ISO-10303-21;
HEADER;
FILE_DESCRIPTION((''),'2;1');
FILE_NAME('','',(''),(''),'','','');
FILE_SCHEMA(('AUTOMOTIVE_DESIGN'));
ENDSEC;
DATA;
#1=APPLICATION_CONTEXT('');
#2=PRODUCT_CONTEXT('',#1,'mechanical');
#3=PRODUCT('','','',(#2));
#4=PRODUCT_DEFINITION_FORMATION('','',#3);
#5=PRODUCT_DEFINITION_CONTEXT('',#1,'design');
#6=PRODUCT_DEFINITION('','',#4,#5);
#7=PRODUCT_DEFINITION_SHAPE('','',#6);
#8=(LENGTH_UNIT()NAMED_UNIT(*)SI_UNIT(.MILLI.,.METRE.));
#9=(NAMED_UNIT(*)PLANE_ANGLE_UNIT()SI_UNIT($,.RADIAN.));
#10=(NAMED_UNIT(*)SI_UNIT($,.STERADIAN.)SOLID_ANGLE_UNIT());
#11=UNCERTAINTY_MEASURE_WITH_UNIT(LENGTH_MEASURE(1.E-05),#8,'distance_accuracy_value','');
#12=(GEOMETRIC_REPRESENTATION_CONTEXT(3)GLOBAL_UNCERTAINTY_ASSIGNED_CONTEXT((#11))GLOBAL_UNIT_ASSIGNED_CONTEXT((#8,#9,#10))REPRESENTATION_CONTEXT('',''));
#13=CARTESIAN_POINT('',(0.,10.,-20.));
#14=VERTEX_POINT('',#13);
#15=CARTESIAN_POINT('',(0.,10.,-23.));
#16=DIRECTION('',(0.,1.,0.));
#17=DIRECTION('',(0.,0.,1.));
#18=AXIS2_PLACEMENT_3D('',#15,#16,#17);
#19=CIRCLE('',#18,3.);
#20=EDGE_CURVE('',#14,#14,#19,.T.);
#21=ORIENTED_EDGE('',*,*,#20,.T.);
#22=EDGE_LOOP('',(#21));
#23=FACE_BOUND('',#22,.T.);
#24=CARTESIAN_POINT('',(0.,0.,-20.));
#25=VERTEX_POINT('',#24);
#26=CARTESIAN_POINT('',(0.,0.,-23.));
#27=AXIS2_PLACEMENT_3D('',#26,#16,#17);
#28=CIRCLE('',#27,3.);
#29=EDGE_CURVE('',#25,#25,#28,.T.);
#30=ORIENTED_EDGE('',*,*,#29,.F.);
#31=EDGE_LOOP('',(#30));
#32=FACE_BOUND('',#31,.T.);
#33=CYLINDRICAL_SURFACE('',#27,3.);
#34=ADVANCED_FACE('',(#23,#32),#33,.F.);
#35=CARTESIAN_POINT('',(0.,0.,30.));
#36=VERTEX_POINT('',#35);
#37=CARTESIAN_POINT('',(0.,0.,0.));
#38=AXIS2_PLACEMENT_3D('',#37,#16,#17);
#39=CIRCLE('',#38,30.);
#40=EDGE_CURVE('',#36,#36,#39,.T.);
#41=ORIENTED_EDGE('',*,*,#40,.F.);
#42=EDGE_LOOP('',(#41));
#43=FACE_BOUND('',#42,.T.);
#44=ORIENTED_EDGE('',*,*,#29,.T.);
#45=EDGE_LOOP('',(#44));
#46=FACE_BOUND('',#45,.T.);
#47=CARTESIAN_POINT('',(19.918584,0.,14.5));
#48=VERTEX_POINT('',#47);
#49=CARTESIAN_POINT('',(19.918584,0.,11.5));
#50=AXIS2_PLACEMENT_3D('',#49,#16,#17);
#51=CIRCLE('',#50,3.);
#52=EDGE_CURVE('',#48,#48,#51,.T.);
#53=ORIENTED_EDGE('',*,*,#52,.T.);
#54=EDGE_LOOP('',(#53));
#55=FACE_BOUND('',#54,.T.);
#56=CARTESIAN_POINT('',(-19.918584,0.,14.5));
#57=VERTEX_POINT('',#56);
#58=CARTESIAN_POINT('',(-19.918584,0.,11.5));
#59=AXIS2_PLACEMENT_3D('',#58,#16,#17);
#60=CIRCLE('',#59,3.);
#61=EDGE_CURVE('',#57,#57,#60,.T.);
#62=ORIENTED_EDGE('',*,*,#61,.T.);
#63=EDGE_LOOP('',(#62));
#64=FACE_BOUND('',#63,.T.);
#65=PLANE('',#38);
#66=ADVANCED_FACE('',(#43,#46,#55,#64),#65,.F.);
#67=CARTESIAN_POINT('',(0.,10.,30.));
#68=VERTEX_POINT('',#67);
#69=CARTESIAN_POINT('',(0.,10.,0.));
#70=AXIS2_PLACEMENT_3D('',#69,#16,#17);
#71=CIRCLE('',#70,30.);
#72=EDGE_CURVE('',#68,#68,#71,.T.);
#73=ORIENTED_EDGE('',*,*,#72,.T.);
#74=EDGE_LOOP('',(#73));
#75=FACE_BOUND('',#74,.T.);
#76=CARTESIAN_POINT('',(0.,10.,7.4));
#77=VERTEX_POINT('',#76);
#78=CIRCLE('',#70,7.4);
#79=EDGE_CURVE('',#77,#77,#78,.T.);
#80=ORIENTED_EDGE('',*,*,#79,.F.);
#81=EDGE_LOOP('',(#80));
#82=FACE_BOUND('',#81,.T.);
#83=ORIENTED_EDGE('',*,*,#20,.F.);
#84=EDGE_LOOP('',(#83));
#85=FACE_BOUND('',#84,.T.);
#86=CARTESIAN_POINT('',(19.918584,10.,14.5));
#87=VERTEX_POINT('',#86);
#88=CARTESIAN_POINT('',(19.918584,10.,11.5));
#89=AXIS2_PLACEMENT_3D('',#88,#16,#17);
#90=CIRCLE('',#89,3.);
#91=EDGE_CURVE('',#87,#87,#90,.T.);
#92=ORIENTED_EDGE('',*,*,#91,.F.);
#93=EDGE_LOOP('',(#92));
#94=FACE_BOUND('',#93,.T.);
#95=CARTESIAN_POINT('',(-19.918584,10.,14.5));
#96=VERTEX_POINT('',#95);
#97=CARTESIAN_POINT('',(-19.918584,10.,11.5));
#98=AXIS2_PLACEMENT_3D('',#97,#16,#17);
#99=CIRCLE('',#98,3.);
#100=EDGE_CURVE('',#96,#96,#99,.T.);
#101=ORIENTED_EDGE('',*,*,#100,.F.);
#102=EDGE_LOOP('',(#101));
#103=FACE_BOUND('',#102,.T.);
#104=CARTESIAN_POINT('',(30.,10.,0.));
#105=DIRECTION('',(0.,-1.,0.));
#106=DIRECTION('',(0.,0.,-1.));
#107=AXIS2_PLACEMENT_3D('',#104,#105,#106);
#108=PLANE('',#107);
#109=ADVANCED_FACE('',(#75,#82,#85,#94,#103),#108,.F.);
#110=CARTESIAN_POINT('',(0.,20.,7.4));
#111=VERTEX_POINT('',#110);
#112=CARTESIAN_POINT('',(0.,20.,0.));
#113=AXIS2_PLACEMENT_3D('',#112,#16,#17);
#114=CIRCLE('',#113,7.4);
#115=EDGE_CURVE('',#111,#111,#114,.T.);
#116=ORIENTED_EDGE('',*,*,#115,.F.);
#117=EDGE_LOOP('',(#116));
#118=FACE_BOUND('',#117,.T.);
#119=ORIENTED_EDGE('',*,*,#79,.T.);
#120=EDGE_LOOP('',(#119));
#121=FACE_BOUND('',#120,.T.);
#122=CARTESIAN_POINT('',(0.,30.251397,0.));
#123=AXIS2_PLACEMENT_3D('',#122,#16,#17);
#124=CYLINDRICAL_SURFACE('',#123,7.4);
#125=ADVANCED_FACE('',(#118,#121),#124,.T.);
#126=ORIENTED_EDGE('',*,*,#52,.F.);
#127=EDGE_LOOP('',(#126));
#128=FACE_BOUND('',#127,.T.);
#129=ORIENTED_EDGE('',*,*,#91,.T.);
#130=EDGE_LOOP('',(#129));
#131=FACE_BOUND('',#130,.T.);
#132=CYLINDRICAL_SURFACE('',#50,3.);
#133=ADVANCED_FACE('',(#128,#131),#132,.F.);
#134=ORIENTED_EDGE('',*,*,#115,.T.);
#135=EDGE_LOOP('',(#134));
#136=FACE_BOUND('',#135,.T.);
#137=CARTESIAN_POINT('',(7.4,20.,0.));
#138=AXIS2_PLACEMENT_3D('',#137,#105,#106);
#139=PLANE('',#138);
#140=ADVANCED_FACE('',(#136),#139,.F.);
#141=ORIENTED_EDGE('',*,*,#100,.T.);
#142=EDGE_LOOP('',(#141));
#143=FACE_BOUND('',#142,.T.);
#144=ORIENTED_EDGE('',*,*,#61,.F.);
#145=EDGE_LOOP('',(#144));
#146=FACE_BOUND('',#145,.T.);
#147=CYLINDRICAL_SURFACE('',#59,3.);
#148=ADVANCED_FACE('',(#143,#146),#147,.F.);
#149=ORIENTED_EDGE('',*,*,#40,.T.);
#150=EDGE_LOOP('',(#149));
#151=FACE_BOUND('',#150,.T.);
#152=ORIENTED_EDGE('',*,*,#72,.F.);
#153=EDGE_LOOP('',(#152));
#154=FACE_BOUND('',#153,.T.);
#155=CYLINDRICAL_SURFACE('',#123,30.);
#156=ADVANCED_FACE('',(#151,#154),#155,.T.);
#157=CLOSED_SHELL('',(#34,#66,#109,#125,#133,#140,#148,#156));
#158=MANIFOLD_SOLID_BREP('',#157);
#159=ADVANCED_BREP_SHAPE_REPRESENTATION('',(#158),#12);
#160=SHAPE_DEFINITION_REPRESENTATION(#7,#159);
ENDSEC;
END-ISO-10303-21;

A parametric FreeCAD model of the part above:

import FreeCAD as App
import Part
import Sketcher
from FreeCAD import Vector
Q = App.Units.Quantity


def add_polygon(sketch, points):
    """Adds a closed chain of lines whose ends are joined by coincident constraints."""
    first, n = sketch.GeometryCount, len(points)
    for a, b in zip(points, points[1:] + points[:1]):
        sketch.addGeometry(Part.LineSegment(App.Vector(*a, 0), App.Vector(*b, 0)), False)
    for i in range(n):
        sketch.addConstraint(Sketcher.Constraint("Coincident", first + i, 2, first + (i + 1) % n, 1))

doc = App.newDocument("Part")
body = doc.addObject("PartDesign::Body", "Body")

# Sketch on XY plane
sketch1 = doc.addObject("Sketcher::SketchObject", "Sketch")
body.addObject(sketch1)
sketch1.AttachmentSupport = (doc.XY_Plane, [""])
sketch1.MapMode = "FlatFace"
add_polygon(sketch1, [(0, 0), (30, 0), (30, 10), (7.4, 10), (7.4, 20), (0, 20)])  # lines 0-5
sketch1.addConstraint([
    Sketcher.Constraint("Horizontal", 0),
    Sketcher.Constraint("Vertical", 1),
    Sketcher.Constraint("Horizontal", 2),
    Sketcher.Constraint("Vertical", 3),
    Sketcher.Constraint("Horizontal", 4),
    Sketcher.Constraint("Vertical", 5),
    Sketcher.Constraint("Coincident", 5, 2, -1, 1),
    Sketcher.Constraint("Equal", 1, 3),
    Sketcher.Constraint("DistanceX", 0, 1, 0, 2, Q("30 mm")),
    Sketcher.Constraint("DistanceY", 1, 1, 1, 2, Q("10 mm")),
    Sketcher.Constraint("DistanceX", 2, 2, 2, 1, Q("22.6 mm")),
])
revolution = doc.addObject("PartDesign::Revolution", "Revolution")
body.addObject(revolution)
revolution.Profile = sketch1
revolution.ReferenceAxis = (sketch1, ["V_Axis"])
revolution.Angle = 360

# Sketch on XZ plane
sketch2 = doc.addObject("Sketcher::SketchObject", "Sketch001")
body.addObject(sketch2)
sketch2.AttachmentSupport = (doc.XZ_Plane, [""])
sketch2.MapMode = "FlatFace"
sketch2.AttachmentOffset = App.Placement(Vector(0, 0, -10), App.Rotation())
sketch2.addGeometry([
    Part.Circle(Vector(0, -23, 0), Vector(0, 0, 1), 3),
    Part.Circle(Vector(19.918584, 11.5, 0), Vector(0, 0, 1), 3),
    Part.Circle(Vector(-19.918584, 11.5, 0), Vector(0, 0, 1), 3),
], False)
sketch2.addConstraint([
    Sketcher.Constraint("Equal", 0, 1),
    Sketcher.Constraint("Equal", 1, 2),
    Sketcher.Constraint("Symmetric", 1, 3, 2, 3, -2),
    Sketcher.Constraint("PointOnObject", 0, 3, -2),
    Sketcher.Constraint("Diameter", 0, Q("6 mm")),
    Sketcher.Constraint("DistanceY", 0, 3, -1, 1, Q("23 mm")),
    Sketcher.Constraint("DistanceY", -1, 1, 1, 3, Q("11.5 mm")),
    Sketcher.Constraint("DistanceX", 2, 3, 1, 3, Q("39.837169 mm")),
])
pocket1 = doc.addObject("PartDesign::Pocket", "Pocket")
body.addObject(pocket1)
pocket1.Profile = sketch2
pocket1.Type = "ThroughAll"
pocket1.Reversed = True

doc.recompute()
